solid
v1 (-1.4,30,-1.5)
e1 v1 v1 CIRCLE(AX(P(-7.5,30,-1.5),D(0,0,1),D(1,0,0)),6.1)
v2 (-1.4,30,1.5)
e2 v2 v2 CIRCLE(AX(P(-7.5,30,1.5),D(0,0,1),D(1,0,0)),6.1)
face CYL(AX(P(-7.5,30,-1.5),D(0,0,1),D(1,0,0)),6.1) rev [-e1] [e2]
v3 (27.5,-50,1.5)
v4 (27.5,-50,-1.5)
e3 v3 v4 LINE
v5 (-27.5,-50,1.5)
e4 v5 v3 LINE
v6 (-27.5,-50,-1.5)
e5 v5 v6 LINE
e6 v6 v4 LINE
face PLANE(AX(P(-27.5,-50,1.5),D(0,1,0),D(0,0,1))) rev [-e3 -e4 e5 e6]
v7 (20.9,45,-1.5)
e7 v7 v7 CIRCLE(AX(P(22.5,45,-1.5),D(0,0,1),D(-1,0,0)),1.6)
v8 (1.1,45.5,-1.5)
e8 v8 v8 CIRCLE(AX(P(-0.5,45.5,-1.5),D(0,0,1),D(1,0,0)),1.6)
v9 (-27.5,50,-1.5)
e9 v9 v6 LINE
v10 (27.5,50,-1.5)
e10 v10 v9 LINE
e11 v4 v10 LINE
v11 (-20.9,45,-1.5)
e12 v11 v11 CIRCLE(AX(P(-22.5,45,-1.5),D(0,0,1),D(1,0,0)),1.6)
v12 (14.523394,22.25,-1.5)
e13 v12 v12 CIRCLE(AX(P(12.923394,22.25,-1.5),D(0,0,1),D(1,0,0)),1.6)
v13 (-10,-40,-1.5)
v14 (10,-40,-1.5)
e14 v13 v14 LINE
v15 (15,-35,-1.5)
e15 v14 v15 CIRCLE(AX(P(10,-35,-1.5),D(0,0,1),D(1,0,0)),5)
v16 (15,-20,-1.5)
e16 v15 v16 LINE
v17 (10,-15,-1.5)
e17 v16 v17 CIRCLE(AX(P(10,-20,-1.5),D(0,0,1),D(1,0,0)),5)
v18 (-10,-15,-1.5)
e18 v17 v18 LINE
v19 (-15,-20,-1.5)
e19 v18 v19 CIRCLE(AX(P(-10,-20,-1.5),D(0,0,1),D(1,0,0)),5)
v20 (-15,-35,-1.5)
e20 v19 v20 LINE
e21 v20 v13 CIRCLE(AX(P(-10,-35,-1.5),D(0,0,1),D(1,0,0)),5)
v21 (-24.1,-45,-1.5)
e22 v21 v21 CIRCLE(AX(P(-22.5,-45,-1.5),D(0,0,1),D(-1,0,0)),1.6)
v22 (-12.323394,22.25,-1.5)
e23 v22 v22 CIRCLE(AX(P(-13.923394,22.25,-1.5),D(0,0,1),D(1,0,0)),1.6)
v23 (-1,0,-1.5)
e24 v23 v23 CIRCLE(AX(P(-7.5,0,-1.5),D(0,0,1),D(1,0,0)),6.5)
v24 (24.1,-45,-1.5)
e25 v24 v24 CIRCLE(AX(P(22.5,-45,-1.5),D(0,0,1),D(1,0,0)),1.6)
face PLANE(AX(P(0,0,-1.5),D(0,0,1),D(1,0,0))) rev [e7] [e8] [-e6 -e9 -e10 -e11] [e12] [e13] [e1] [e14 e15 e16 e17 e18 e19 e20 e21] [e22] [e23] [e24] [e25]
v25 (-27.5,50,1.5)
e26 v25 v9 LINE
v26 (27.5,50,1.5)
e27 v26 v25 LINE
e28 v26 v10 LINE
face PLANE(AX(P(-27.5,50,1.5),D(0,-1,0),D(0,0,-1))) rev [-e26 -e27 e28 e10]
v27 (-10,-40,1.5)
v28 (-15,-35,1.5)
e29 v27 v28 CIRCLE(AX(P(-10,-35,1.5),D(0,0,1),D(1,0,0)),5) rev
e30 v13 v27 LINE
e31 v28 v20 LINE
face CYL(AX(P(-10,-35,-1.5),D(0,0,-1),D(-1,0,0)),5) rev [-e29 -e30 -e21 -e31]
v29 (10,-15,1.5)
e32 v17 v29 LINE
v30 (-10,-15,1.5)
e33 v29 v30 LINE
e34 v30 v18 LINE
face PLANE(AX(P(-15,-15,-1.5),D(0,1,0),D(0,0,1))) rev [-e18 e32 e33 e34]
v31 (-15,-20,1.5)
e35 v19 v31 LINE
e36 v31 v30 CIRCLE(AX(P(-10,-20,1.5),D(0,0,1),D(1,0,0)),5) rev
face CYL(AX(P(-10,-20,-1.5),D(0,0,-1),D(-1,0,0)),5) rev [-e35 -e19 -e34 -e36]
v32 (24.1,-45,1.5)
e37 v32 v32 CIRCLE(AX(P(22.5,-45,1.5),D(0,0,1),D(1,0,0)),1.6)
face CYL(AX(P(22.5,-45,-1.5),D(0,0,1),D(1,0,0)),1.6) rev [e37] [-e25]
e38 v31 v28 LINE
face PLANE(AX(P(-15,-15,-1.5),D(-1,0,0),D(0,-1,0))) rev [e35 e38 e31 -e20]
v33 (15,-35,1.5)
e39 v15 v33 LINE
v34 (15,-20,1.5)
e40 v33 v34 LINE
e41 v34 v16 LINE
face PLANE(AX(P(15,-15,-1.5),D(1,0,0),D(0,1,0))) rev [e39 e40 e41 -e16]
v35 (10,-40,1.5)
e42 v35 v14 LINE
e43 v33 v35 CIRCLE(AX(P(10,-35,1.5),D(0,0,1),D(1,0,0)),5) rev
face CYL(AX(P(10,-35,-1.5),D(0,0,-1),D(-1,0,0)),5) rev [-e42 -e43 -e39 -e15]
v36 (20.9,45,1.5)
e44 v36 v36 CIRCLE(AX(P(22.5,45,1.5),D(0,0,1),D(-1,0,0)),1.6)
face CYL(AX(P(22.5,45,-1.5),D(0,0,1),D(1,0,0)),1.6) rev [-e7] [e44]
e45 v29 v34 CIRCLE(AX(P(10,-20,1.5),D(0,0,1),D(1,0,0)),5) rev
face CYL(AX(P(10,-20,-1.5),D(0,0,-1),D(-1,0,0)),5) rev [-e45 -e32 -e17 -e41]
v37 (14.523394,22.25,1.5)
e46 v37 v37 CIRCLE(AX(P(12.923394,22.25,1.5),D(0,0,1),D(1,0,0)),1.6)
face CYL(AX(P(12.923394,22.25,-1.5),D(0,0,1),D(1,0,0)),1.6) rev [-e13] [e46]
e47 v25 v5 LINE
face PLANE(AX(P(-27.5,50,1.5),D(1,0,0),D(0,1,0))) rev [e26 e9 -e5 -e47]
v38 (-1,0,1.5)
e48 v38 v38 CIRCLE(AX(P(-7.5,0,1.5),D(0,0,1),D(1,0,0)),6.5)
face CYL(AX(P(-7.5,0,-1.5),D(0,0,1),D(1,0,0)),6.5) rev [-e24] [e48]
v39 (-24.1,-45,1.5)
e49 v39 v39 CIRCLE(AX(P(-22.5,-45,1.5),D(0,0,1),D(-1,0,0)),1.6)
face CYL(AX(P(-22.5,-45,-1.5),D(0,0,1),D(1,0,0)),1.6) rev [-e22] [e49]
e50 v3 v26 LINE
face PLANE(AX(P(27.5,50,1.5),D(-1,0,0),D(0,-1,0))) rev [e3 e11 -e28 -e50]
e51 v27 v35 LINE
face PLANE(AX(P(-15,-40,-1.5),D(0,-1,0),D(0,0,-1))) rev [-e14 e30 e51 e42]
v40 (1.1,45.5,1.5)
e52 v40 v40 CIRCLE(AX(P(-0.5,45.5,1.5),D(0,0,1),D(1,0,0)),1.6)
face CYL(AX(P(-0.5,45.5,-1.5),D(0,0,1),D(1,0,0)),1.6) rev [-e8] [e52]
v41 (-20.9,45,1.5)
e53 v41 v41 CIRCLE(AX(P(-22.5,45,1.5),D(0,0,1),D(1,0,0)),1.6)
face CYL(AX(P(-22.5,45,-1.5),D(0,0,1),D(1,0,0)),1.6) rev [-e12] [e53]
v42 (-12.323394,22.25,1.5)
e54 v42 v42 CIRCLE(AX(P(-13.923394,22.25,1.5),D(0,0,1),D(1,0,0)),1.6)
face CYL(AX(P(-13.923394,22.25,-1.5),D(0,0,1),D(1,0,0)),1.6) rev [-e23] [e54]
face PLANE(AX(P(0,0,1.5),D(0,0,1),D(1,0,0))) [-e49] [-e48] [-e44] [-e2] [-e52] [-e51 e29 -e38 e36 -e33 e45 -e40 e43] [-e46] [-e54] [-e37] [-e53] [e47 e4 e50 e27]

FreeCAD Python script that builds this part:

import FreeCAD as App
import Part
import Sketcher

V = App.Vector
Q = App.Units.Quantity


def edges_at(feature, points):
    """Names of the edges that pass closest to the given points."""
    edges = feature.Shape.Edges
    near = lambda p: min(range(len(edges)), key=lambda i: edges[i].distToShape(Part.Vertex(*p))[0])
    return sorted({f"Edge{near(p) + 1}" for p in points})

doc = App.newDocument("Part")
body = doc.addObject("PartDesign::Body", "Body")

# Sketch on XY plane
sketch1 = body.newObject("Sketcher::SketchObject", "Sketch")
sketch1.AttachmentSupport = (doc.getObject("XY_Plane"), [""])
sketch1.MapMode = "FlatFace"
sketch1.addGeometry(Part.LineSegment(V(-28, 50, 0), V(-28, -50, 0)), False)
sketch1.addGeometry(Part.LineSegment(V(-28, -50, 0), V(28, -50, 0)), False)
sketch1.addGeometry(Part.LineSegment(V(28, -50, 0), V(28, 50, 0)), False)
sketch1.addGeometry(Part.LineSegment(V(28, 50, 0), V(-28, 50, 0)), False)
sketch1.addConstraint(Sketcher.Constraint("Coincident", 0, 2, 1, 1))
sketch1.addConstraint(Sketcher.Constraint("Coincident", 1, 2, 2, 1))
sketch1.addConstraint(Sketcher.Constraint("Coincident", 2, 2, 3, 1))
sketch1.addConstraint(Sketcher.Constraint("Coincident", 3, 2, 0, 1))
sketch1.addConstraint(Sketcher.Constraint("Vertical", 0))
sketch1.addConstraint(Sketcher.Constraint("Horizontal", 1))
sketch1.addConstraint(Sketcher.Constraint("Vertical", 2))
sketch1.addConstraint(Sketcher.Constraint("Horizontal", 3))
sketch1.addConstraint(Sketcher.Constraint("Symmetric", 0, 2, 2, 2, -1, 1))
sketch1.addConstraint(Sketcher.Constraint("DistanceX", 1, 1, 1, 2, Q("55 mm")))
sketch1.addConstraint(Sketcher.Constraint("DistanceY", 0, 2, 0, 1, Q("100 mm")))
pad1 = body.newObject("PartDesign::Pad", "Pad")
pad1.Profile = sketch1
pad1.Length = 3
pad1.Midplane = True

# Sketch on XY plane
sketch2 = body.newObject("Sketcher::SketchObject", "Sketch001")
sketch2.AttachmentSupport = (doc.getObject("XY_Plane"), [""])
sketch2.MapMode = "FlatFace"
sketch2.AttachmentOffset = App.Placement(V(0, 0, 1.5), App.Rotation())
sketch2.addGeometry(Part.Circle(V(-7.5, 30, 0), V(0, 0, 1), 6.1), False)
sketch2.addGeometry(Part.Circle(V(-7.5, 0, 0), V(0, 0, 1), 6.5), False)
sketch2.addGeometry(Part.Circle(V(12.9, 22.2, 0), V(0, 0, 1), 1.6), False)
sketch2.addGeometry(Part.Circle(V(-0.5, 45.5, 0), V(0, 0, 1), 1.6), False)
sketch2.addGeometry(Part.Circle(V(-13.9, 22.2, 0), V(0, 0, 1), 1.6), False)
sketch2.addConstraint(Sketcher.Constraint("Equal", 2, 3))
sketch2.addConstraint(Sketcher.Constraint("Equal", 3, 4))
sketch2.addConstraint(Sketcher.Constraint("PointOnObject", 1, 3, -1))
sketch2.addConstraint(Sketcher.Constraint("Horizontal", 2, 3, 4, 3))
sketch2.addConstraint(Sketcher.Constraint("Vertical", 0, 3, 1, 3))
sketch2.addConstraint(Sketcher.Constraint("Diameter", 1, Q("13 mm")))
sketch2.addConstraint(Sketcher.Constraint("Diameter", 0, Q("12.2 mm")))
sketch2.addConstraint(Sketcher.Constraint("Diameter", 2, Q("3.2 mm")))
sketch2.addConstraint(Sketcher.Constraint("DistanceY", -1, 1, 0, 3, Q("30 mm")))
sketch2.addConstraint(Sketcher.Constraint("DistanceX", 0, 3, 3, 3, Q("7 mm")))
sketch2.addConstraint(Sketcher.Constraint("DistanceX", 0, 3, -1, 1, Q("7.5 mm")))
sketch2.addConstraint(Sketcher.Constraint("DistanceY", -1, 1, 3, 3, Q("45.5 mm")))
sketch2.addConstraint(Sketcher.Constraint("DistanceY", -1, 1, 2, 3, Q("22.25 mm")))
sketch2.addConstraint(Sketcher.Constraint("DistanceX", -1, 1, 2, 3, Q("12.923394 mm")))
sketch2.addConstraint(Sketcher.Constraint("DistanceX", 4, 3, -1, 1, Q("13.923394 mm")))
pocket1 = body.newObject("PartDesign::Pocket", "Pocket")
pocket1.Profile = sketch2
pocket1.Type = "ThroughAll"

# Sketch on XY plane
sketch3 = body.newObject("Sketcher::SketchObject", "Sketch002")
sketch3.AttachmentSupport = (doc.getObject("XY_Plane"), [""])
sketch3.MapMode = "FlatFace"
sketch3.AttachmentOffset = App.Placement(V(0, 0, 1.5), App.Rotation())
sketch3.addGeometry(Part.Circle(V(-22.5, 45, 0), V(0, 0, 1), 1.6), False)
sketch3.addGeometry(Part.Circle(V(22.5, 45, 0), V(0, 0, 1), 1.6), False)
sketch3.addGeometry(Part.Circle(V(22.5, -45, 0), V(0, 0, 1), 1.6), False)
sketch3.addGeometry(Part.Circle(V(-22.5, -45, 0), V(0, 0, 1), 1.6), False)
sketch3.addConstraint(Sketcher.Constraint("Equal", 0, 1))
sketch3.addConstraint(Sketcher.Constraint("Equal", 1, 2))
sketch3.addConstraint(Sketcher.Constraint("Equal", 2, 3))
sketch3.addConstraint(Sketcher.Constraint("Symmetric", 0, 3, 2, 3, -1, 1))
sketch3.addConstraint(Sketcher.Constraint("Symmetric", 1, 3, 3, 3, -1, 1))
sketch3.addConstraint(Sketcher.Constraint("Symmetric", 0, 3, 1, 3, -2))
sketch3.addConstraint(Sketcher.Constraint("Diameter", 0, Q("3.2 mm")))
sketch3.addConstraint(Sketcher.Constraint("DistanceY", -1, 1, 0, 3, Q("45 mm")))
sketch3.addConstraint(Sketcher.Constraint("DistanceX", 0, 3, 1, 3, Q("45 mm")))
pocket2 = body.newObject("PartDesign::Pocket", "Pocket001")
pocket2.Profile = sketch3
pocket2.Type = "ThroughAll"

# Sketch on XY plane
sketch4 = body.newObject("Sketcher::SketchObject", "Sketch003")
sketch4.AttachmentSupport = (doc.getObject("XY_Plane"), [""])
sketch4.MapMode = "FlatFace"
sketch4.AttachmentOffset = App.Placement(V(0, 0, 1.5), App.Rotation())
sketch4.addGeometry(Part.LineSegment(V(-15, -15, 0), V(-15, -40, 0)), False)
sketch4.addGeometry(Part.LineSegment(V(-15, -40, 0), V(15, -40, 0)), False)
sketch4.addGeometry(Part.LineSegment(V(15, -40, 0), V(15, -15, 0)), False)
sketch4.addGeometry(Part.LineSegment(V(15, -15, 0), V(-15, -15, 0)), False)
sketch4.addConstraint(Sketcher.Constraint("Coincident", 0, 2, 1, 1))
sketch4.addConstraint(Sketcher.Constraint("Coincident", 1, 2, 2, 1))
sketch4.addConstraint(Sketcher.Constraint("Coincident", 2, 2, 3, 1))
sketch4.addConstraint(Sketcher.Constraint("Coincident", 3, 2, 0, 1))
sketch4.addConstraint(Sketcher.Constraint("Vertical", 0))
sketch4.addConstraint(Sketcher.Constraint("Horizontal", 1))
sketch4.addConstraint(Sketcher.Constraint("Vertical", 2))
sketch4.addConstraint(Sketcher.Constraint("Horizontal", 3))
sketch4.addConstraint(Sketcher.Constraint("DistanceX", 1, 1, 1, 2, Q("30 mm")))
sketch4.addConstraint(Sketcher.Constraint("DistanceY", 0, 2, 0, 1, Q("25 mm")))
sketch4.addConstraint(Sketcher.Constraint("DistanceX", 0, 2, -1, 1, Q("15 mm")))
sketch4.addConstraint(Sketcher.Constraint("DistanceY", 0, 2, -1, 1, Q("40 mm")))
pocket3 = body.newObject("PartDesign::Pocket", "Pocket002")
pocket3.Profile = sketch4
pocket3.Type = "ThroughAll"
doc.recompute()

fillet = body.newObject("PartDesign::Fillet", "Fillet")
fillet.Base = (pocket3, edges_at(pocket3, [
    (15, -15, 0),
    (15, -40, 0),
    (-15, -40, 0),
    (-15, -15, 0),
]))
fillet.Radius = 5

doc.recompute()
